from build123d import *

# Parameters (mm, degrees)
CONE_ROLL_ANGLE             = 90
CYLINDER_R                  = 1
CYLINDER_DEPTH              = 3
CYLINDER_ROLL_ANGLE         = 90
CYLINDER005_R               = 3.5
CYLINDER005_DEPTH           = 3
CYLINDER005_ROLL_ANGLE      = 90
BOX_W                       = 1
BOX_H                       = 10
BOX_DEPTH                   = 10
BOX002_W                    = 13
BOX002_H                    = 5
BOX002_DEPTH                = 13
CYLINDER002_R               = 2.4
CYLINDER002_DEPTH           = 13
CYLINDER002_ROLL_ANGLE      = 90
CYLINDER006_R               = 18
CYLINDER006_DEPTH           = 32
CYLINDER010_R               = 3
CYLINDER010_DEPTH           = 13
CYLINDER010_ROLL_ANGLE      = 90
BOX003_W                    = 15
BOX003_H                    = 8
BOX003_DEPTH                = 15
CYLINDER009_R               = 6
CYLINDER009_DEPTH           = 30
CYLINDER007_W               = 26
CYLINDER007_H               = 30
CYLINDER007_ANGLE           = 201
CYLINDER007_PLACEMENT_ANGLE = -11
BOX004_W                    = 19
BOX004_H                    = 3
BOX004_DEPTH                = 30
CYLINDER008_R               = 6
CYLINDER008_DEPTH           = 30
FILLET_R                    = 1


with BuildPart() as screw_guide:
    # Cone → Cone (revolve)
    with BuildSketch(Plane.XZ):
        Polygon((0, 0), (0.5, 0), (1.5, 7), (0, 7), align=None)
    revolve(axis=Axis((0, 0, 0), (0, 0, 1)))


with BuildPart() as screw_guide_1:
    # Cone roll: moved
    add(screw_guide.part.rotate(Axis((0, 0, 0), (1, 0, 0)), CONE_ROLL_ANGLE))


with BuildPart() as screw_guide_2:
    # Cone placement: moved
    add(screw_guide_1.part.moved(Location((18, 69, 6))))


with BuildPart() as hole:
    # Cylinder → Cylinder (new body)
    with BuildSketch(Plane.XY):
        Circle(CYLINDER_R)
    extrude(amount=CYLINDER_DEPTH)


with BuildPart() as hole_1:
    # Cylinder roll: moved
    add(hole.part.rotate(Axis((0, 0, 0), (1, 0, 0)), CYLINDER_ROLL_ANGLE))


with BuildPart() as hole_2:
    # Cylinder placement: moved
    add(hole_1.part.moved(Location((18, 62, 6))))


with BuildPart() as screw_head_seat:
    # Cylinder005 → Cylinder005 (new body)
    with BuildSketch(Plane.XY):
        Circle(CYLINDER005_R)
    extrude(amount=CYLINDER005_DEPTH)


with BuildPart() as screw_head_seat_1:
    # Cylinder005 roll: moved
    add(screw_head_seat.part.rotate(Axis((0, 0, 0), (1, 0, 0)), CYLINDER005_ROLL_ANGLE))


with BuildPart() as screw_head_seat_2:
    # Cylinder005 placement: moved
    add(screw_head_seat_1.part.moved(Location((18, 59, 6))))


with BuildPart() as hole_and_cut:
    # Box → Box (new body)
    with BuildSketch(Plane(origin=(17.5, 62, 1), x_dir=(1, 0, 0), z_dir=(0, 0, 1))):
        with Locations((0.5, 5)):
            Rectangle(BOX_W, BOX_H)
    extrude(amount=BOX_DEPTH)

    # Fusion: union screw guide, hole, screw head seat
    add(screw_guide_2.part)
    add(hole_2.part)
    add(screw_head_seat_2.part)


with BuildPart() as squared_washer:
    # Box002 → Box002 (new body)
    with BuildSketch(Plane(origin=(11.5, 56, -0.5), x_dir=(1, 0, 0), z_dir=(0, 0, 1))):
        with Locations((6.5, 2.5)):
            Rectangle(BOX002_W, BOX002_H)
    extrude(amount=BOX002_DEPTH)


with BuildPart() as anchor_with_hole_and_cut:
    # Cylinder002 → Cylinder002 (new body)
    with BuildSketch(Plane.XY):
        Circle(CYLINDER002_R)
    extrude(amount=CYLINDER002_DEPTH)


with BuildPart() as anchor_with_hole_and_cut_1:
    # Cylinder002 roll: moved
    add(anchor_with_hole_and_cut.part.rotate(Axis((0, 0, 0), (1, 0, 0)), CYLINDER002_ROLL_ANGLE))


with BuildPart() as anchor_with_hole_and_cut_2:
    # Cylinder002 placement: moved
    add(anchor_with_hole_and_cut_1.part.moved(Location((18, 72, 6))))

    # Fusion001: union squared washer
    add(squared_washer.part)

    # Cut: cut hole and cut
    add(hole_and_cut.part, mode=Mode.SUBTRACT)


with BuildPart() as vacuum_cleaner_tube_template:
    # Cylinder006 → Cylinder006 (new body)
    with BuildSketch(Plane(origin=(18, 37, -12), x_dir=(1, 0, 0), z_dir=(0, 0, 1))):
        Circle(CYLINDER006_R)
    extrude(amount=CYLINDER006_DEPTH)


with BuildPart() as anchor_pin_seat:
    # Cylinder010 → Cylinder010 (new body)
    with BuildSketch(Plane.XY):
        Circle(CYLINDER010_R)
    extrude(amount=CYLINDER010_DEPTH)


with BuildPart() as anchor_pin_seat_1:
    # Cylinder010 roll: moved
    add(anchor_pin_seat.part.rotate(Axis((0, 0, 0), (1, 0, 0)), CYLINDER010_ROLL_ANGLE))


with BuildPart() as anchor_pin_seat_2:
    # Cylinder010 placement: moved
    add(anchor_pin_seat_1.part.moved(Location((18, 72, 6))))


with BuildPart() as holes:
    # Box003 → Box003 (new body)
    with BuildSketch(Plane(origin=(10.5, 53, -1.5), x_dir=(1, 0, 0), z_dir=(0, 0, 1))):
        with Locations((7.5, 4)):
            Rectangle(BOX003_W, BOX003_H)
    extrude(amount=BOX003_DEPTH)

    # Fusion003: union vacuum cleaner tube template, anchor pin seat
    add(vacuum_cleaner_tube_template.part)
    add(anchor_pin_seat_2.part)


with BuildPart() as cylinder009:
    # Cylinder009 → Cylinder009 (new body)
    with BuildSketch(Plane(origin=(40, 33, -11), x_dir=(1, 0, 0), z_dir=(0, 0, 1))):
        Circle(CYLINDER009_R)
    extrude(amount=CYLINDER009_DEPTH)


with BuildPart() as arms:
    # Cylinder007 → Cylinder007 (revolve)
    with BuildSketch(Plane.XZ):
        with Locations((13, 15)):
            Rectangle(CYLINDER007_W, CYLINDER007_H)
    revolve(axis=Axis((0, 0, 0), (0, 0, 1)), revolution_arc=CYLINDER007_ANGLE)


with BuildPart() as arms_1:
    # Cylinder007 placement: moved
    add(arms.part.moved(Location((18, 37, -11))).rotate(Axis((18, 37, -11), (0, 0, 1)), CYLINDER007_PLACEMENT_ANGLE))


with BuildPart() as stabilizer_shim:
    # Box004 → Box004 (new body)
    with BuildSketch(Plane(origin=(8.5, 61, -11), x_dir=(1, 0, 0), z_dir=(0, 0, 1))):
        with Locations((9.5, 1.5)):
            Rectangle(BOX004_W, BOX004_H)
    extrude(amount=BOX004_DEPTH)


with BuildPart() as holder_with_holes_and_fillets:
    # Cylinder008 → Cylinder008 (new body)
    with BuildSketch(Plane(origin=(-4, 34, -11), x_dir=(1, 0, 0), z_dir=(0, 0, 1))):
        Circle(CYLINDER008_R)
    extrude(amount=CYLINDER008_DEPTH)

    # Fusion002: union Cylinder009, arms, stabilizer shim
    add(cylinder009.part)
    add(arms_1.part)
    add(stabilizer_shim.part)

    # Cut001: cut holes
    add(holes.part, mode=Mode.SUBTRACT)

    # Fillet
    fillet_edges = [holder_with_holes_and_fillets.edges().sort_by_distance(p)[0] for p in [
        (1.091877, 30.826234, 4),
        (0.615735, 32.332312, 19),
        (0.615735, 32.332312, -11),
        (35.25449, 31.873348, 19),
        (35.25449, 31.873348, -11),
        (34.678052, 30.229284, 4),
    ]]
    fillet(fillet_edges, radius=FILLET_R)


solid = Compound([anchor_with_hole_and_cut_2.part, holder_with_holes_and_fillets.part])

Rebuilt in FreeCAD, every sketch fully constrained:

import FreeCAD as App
import Part
import Sketcher


def edges_at(feature, points):
    """Names of the edges that pass closest to the given points."""
    edges = feature.Shape.Edges
    near = lambda p: min(range(len(edges)), key=lambda i: edges[i].distToShape(Part.Vertex(*p))[0])
    return sorted({f"Edge{near(p) + 1}" for p in points})


def add_polygon(sketch, points):
    """Adds a closed chain of lines whose ends are joined by coincident constraints."""
    first, n = sketch.GeometryCount, len(points)
    for a, b in zip(points, points[1:] + points[:1]):
        sketch.addGeometry(Part.LineSegment(App.Vector(*a, 0), App.Vector(*b, 0)), False)
    for i in range(n):
        sketch.addConstraint(Sketcher.Constraint("Coincident", first + i, 2, first + (i + 1) % n, 1))

doc = App.newDocument("Part")
body = doc.addObject("PartDesign::Body", "Body")

sketch1 = body.newObject("Sketcher::SketchObject", "Sketch")
sketch1.AttachmentSupport = (doc.getObject("XZ_Plane"), [""])
sketch1.MapMode = "FlatFace"
add_polygon(sketch1, [(0, 0), (0.5, 0), (1.5, 7), (0, 7)])
sketch1.addConstraint(Sketcher.Constraint("Horizontal", 0))
sketch1.addConstraint(Sketcher.Constraint("Horizontal", 2))
sketch1.addConstraint(Sketcher.Constraint("Vertical", 3))
sketch1.addConstraint(Sketcher.Constraint("Coincident", 3, 2, -1, 1))
sketch1.addConstraint(Sketcher.Constraint("DistanceY", 3, 2, 3, 1, 7.0))
sketch1.addConstraint(Sketcher.Constraint("DistanceX", 0, 1, 0, 2, 0.5))
sketch1.addConstraint(Sketcher.Constraint("DistanceX", 2, 2, 2, 1, 1.5))
revolution = body.newObject("PartDesign::Revolution", "Revolution")
revolution.Profile = sketch1
revolution.ReferenceAxis = (sketch1, ["V_Axis"])
revolution.Angle = 360
body2 = doc.addObject("PartDesign::Body", "Body001")
doc.recompute()

body.Placement = App.Placement(App.Vector(0, 0, 0), App.Rotation(App.Vector(1, 0, 0), 90))
boolean = body2.newObject("PartDesign::Boolean", "Boolean")
boolean.Type = "Fuse"
boolean.addObjects([body])
body3 = doc.addObject("PartDesign::Body", "Body002")
doc.recompute()

body2.Placement = App.Placement(App.Vector(18, 69, 6), App.Rotation(App.Vector(0, 0, 1), 0))
boolean2 = body3.newObject("PartDesign::Boolean", "Boolean001")
boolean2.Type = "Fuse"
boolean2.addObjects([body2])
body4 = doc.addObject("PartDesign::Body", "Body003")

sketch2 = body4.newObject("Sketcher::SketchObject", "Sketch001")
sketch2.AttachmentSupport = (doc.getObject("XY_Plane003"), [""])
sketch2.MapMode = "FlatFace"
sketch2.addGeometry(Part.Circle(App.Vector(0, 0, 0), App.Vector(0, 0, 1), 1), False)
sketch2.addConstraint(Sketcher.Constraint("Coincident", 0, 3, -1, 1))
sketch2.addConstraint(Sketcher.Constraint("Diameter", 0, 2.0))
pad1 = body4.newObject("PartDesign::Pad", "Pad")
pad1.Profile = sketch2
pad1.Length = 3
body5 = doc.addObject("PartDesign::Body", "Body004")
doc.recompute()

body4.Placement = App.Placement(App.Vector(0, 0, 0), App.Rotation(App.Vector(1, 0, 0), 90))
boolean3 = body5.newObject("PartDesign::Boolean", "Boolean002")
boolean3.Type = "Fuse"
boolean3.addObjects([body4])
body6 = doc.addObject("PartDesign::Body", "Body005")
doc.recompute()

body5.Placement = App.Placement(App.Vector(18, 62, 6), App.Rotation(App.Vector(0, 0, 1), 0))
boolean4 = body6.newObject("PartDesign::Boolean", "Boolean003")
boolean4.Type = "Fuse"
boolean4.addObjects([body5])
body7 = doc.addObject("PartDesign::Body", "Body006")

sketch3 = body7.newObject("Sketcher::SketchObject", "Sketch002")
sketch3.AttachmentSupport = (doc.getObject("XY_Plane006"), [""])
sketch3.MapMode = "FlatFace"
sketch3.addGeometry(Part.Circle(App.Vector(0, 0, 0), App.Vector(0, 0, 1), 3.5), False)
sketch3.addConstraint(Sketcher.Constraint("Coincident", 0, 3, -1, 1))
sketch3.addConstraint(Sketcher.Constraint("Diameter", 0, 7.0))
pad2 = body7.newObject("PartDesign::Pad", "Pad001")
pad2.Profile = sketch3
pad2.Length = 3
body8 = doc.addObject("PartDesign::Body", "Body007")
doc.recompute()

body7.Placement = App.Placement(App.Vector(0, 0, 0), App.Rotation(App.Vector(1, 0, 0), 90))
boolean5 = body8.newObject("PartDesign::Boolean", "Boolean004")
boolean5.Type = "Fuse"
boolean5.addObjects([body7])
body9 = doc.addObject("PartDesign::Body", "Body008")
doc.recompute()

body8.Placement = App.Placement(App.Vector(18, 59, 6), App.Rotation(App.Vector(0, 0, 1), 0))
boolean6 = body9.newObject("PartDesign::Boolean", "Boolean005")
boolean6.Type = "Fuse"
boolean6.addObjects([body8])
body10 = doc.addObject("PartDesign::Body", "Body009")

sketch4 = body10.newObject("Sketcher::SketchObject", "Sketch003")
sketch4.AttachmentSupport = (doc.getObject("XY_Plane009"), [""])
sketch4.MapMode = "FlatFace"
sketch4.AttachmentOffset = App.Placement(App.Vector(0, 0, 1), App.Rotation())
add_polygon(sketch4, [(17.5, 72), (17.5, 62), (18.5, 62), (18.5, 72)])
sketch4.addConstraint(Sketcher.Constraint("Vertical", 0))
sketch4.addConstraint(Sketcher.Constraint("Horizontal", 1))
sketch4.addConstraint(Sketcher.Constraint("Vertical", 2))
sketch4.addConstraint(Sketcher.Constraint("Horizontal", 3))
sketch4.addConstraint(Sketcher.Constraint("DistanceX", 1, 1, 1, 2, 1.0))
sketch4.addConstraint(Sketcher.Constraint("DistanceY", 0, 2, 0, 1, 10.0))
sketch4.addConstraint(Sketcher.Constraint("DistanceY", -1, 1, 0, 2, 62.0))
sketch4.addConstraint(Sketcher.Constraint("DistanceX", -1, 1, 0, 2, 17.5))
pad3 = body10.newObject("PartDesign::Pad", "Pad002")
pad3.Profile = sketch4
pad3.Length = 10
doc.recompute()

boolean7 = body10.newObject("PartDesign::Boolean", "Boolean006")
boolean7.Type = "Fuse"
boolean7.addObjects([body3])
doc.recompute()

boolean8 = body10.newObject("PartDesign::Boolean", "Boolean007")
boolean8.Type = "Fuse"
boolean8.addObjects([body6])
doc.recompute()

boolean9 = body10.newObject("PartDesign::Boolean", "Boolean008")
boolean9.Type = "Fuse"
boolean9.addObjects([body9])
body11 = doc.addObject("PartDesign::Body", "Body010")

sketch5 = body11.newObject("Sketcher::SketchObject", "Sketch004")
sketch5.AttachmentSupport = (doc.getObject("XY_Plane010"), [""])
sketch5.MapMode = "FlatFace"
sketch5.AttachmentOffset = App.Placement(App.Vector(0, 0, -0.5), App.Rotation())
add_polygon(sketch5, [(12, 61), (12, 56), (24, 56), (24, 61)])
sketch5.addConstraint(Sketcher.Constraint("Vertical", 0))
sketch5.addConstraint(Sketcher.Constraint("Horizontal", 1))
sketch5.addConstraint(Sketcher.Constraint("Vertical", 2))
sketch5.addConstraint(Sketcher.Constraint("Horizontal", 3))
sketch5.addConstraint(Sketcher.Constraint("DistanceX", 1, 1, 1, 2, 13.0))
sketch5.addConstraint(Sketcher.Constraint("DistanceY", 0, 2, 0, 1, 5.0))
sketch5.addConstraint(Sketcher.Constraint("DistanceY", -1, 1, 0, 2, 56.0))
sketch5.addConstraint(Sketcher.Constraint("DistanceX", -1, 1, 0, 2, 11.5))
pad4 = body11.newObject("PartDesign::Pad", "Pad003")
pad4.Profile = sketch5
pad4.Length = 13
body12 = doc.addObject("PartDesign::Body", "Body011")

sketch6 = body12.newObject("Sketcher::SketchObject", "Sketch005")
sketch6.AttachmentSupport = (doc.getObject("XY_Plane011"), [""])
sketch6.MapMode = "FlatFace"
sketch6.addGeometry(Part.Circle(App.Vector(0, 0, 0), App.Vector(0, 0, 1), 2.4), False)
sketch6.addConstraint(Sketcher.Constraint("Coincident", 0, 3, -1, 1))
sketch6.addConstraint(Sketcher.Constraint("Diameter", 0, 4.8))
pad5 = body12.newObject("PartDesign::Pad", "Pad004")
pad5.Profile = sketch6
pad5.Length = 13
body13 = doc.addObject("PartDesign::Body", "Body012")
doc.recompute()

body12.Placement = App.Placement(App.Vector(0, 0, 0), App.Rotation(App.Vector(1, 0, 0), 90))
boolean10 = body13.newObject("PartDesign::Boolean", "Boolean009")
boolean10.Type = "Fuse"
boolean10.addObjects([body12])
body14 = doc.addObject("PartDesign::Body", "Body013")
doc.recompute()

body13.Placement = App.Placement(App.Vector(18, 72, 6), App.Rotation(App.Vector(0, 0, 1), 0))
boolean11 = body14.newObject("PartDesign::Boolean", "Boolean010")
boolean11.Type = "Fuse"
boolean11.addObjects([body13])
doc.recompute()

boolean12 = body14.newObject("PartDesign::Boolean", "Boolean011")
boolean12.Type = "Fuse"
boolean12.addObjects([body11])
doc.recompute()

boolean13 = body14.newObject("PartDesign::Boolean", "Boolean012")
boolean13.Type = "Cut"
boolean13.addObjects([body10])
body15 = doc.addObject("PartDesign::Body", "Body014")

sketch7 = body15.newObject("Sketcher::SketchObject", "Sketch006")
sketch7.AttachmentSupport = (doc.getObject("XY_Plane014"), [""])
sketch7.MapMode = "FlatFace"
sketch7.AttachmentOffset = App.Placement(App.Vector(0, 0, -12), App.Rotation())
sketch7.addGeometry(Part.Circle(App.Vector(18, 37, 0), App.Vector(0, 0, 1), 18), False)
sketch7.addConstraint(Sketcher.Constraint("Diameter", 0, 36.0))
sketch7.addConstraint(Sketcher.Constraint("DistanceX", -1, 1, 0, 3, 18.0))
sketch7.addConstraint(Sketcher.Constraint("DistanceY", -1, 1, 0, 3, 37.0))
pad6 = body15.newObject("PartDesign::Pad", "Pad005")
pad6.Profile = sketch7
pad6.Length = 32
body16 = doc.addObject("PartDesign::Body", "Body015")

sketch8 = body16.newObject("Sketcher::SketchObject", "Sketch007")
sketch8.AttachmentSupport = (doc.getObject("XY_Plane015"), [""])
sketch8.MapMode = "FlatFace"
sketch8.addGeometry(Part.Circle(App.Vector(0, 0, 0), App.Vector(0, 0, 1), 3), False)
sketch8.addConstraint(Sketcher.Constraint("Coincident", 0, 3, -1, 1))
sketch8.addConstraint(Sketcher.Constraint("Diameter", 0, 6.0))
pad7 = body16.newObject("PartDesign::Pad", "Pad006")
pad7.Profile = sketch8
pad7.Length = 13
body17 = doc.addObject("PartDesign::Body", "Body016")
doc.recompute()

body16.Placement = App.Placement(App.Vector(0, 0, 0), App.Rotation(App.Vector(1, 0, 0), 90))
boolean14 = body17.newObject("PartDesign::Boolean", "Boolean013")
boolean14.Type = "Fuse"
boolean14.addObjects([body16])
body18 = doc.addObject("PartDesign::Body", "Body017")
doc.recompute()

body17.Placement = App.Placement(App.Vector(18, 72, 6), App.Rotation(App.Vector(0, 0, 1), 0))
boolean15 = body18.newObject("PartDesign::Boolean", "Boolean014")
boolean15.Type = "Fuse"
boolean15.addObjects([body17])
body19 = doc.addObject("PartDesign::Body", "Body018")

sketch9 = body19.newObject("Sketcher::SketchObject", "Sketch008")
sketch9.AttachmentSupport = (doc.getObject("XY_Plane018"), [""])
sketch9.MapMode = "FlatFace"
sketch9.AttachmentOffset = App.Placement(App.Vector(0, 0, -1.5), App.Rotation())
add_polygon(sketch9, [(10, 61), (10, 53), (26, 53), (26, 61)])
sketch9.addConstraint(Sketcher.Constraint("Vertical", 0))
sketch9.addConstraint(Sketcher.Constraint("Horizontal", 1))
sketch9.addConstraint(Sketcher.Constraint("Vertical", 2))
sketch9.addConstraint(Sketcher.Constraint("Horizontal", 3))
sketch9.addConstraint(Sketcher.Constraint("DistanceX", 1, 1, 1, 2, 15.0))
sketch9.addConstraint(Sketcher.Constraint("DistanceY", 0, 2, 0, 1, 8.0))
sketch9.addConstraint(Sketcher.Constraint("DistanceY", -1, 1, 0, 2, 53.0))
sketch9.addConstraint(Sketcher.Constraint("DistanceX", -1, 1, 0, 2, 10.5))
pad8 = body19.newObject("PartDesign::Pad", "Pad007")
pad8.Profile = sketch9
pad8.Length = 15
doc.recompute()

boolean16 = body19.newObject("PartDesign::Boolean", "Boolean015")
boolean16.Type = "Fuse"
boolean16.addObjects([body15])
doc.recompute()

boolean17 = body19.newObject("PartDesign::Boolean", "Boolean016")
boolean17.Type = "Fuse"
boolean17.addObjects([body18])
body20 = doc.addObject("PartDesign::Body", "Body019")

sketch10 = body20.newObject("Sketcher::SketchObject", "Sketch009")
sketch10.AttachmentSupport = (doc.getObject("XY_Plane019"), [""])
sketch10.MapMode = "FlatFace"
sketch10.AttachmentOffset = App.Placement(App.Vector(0, 0, -11), App.Rotation())
sketch10.addGeometry(Part.Circle(App.Vector(40, 33, 0), App.Vector(0, 0, 1), 6), False)
sketch10.addConstraint(Sketcher.Constraint("Diameter", 0, 12.0))
sketch10.addConstraint(Sketcher.Constraint("DistanceX", -1, 1, 0, 3, 40.0))
sketch10.addConstraint(Sketcher.Constraint("DistanceY", -1, 1, 0, 3, 33.0))
pad9 = body20.newObject("PartDesign::Pad", "Pad008")
pad9.Profile = sketch10
pad9.Length = 30
body21 = doc.addObject("PartDesign::Body", "Body020")

sketch11 = body21.newObject("Sketcher::SketchObject", "Sketch010")
sketch11.AttachmentSupport = (doc.getObject("XZ_Plane020"), [""])
sketch11.MapMode = "FlatFace"
add_polygon(sketch11, [(0, 30), (0, 0), (26, 0), (26, 30)])
sketch11.addConstraint(Sketcher.Constraint("Vertical", 0))
sketch11.addConstraint(Sketcher.Constraint("Horizontal", 1))
sketch11.addConstraint(Sketcher.Constraint("Vertical", 2))
sketch11.addConstraint(Sketcher.Constraint("Horizontal", 3))
sketch11.addConstraint(Sketcher.Constraint("Coincident", 0, 2, -1, 1))
sketch11.addConstraint(Sketcher.Constraint("DistanceX", 1, 1, 1, 2, 26.0))
sketch11.addConstraint(Sketcher.Constraint("DistanceY", 0, 2, 0, 1, 30.0))
revolution2 = body21.newObject("PartDesign::Revolution", "Revolution001")
revolution2.Profile = sketch11
revolution2.ReferenceAxis = (sketch11, ["V_Axis"])
revolution2.Angle = 201
body22 = doc.addObject("PartDesign::Body", "Body021")
doc.recompute()

body21.Placement = App.Placement(App.Vector(18, 37, -11), App.Rotation(App.Vector(0, 0, 1), 349))
boolean18 = body22.newObject("PartDesign::Boolean", "Boolean017")
boolean18.Type = "Fuse"
boolean18.addObjects([body21])
body23 = doc.addObject("PartDesign::Body", "Body022")

sketch12 = body23.newObject("Sketcher::SketchObject", "Sketch011")
sketch12.AttachmentSupport = (doc.getObject("XY_Plane022"), [""])
sketch12.MapMode = "FlatFace"
sketch12.AttachmentOffset = App.Placement(App.Vector(0, 0, -11), App.Rotation())
add_polygon(sketch12, [(8.5, 64), (8.5, 61), (27.5, 61), (27.5, 64)])
sketch12.addConstraint(Sketcher.Constraint("Vertical", 0))
sketch12.addConstraint(Sketcher.Constraint("Horizontal", 1))
sketch12.addConstraint(Sketcher.Constraint("Vertical", 2))
sketch12.addConstraint(Sketcher.Constraint("Horizontal", 3))
sketch12.addConstraint(Sketcher.Constraint("DistanceX", 1, 1, 1, 2, 19.0))
sketch12.addConstraint(Sketcher.Constraint("DistanceY", 0, 2, 0, 1, 3.0))
sketch12.addConstraint(Sketcher.Constraint("DistanceY", -1, 1, 0, 2, 61.0))
sketch12.addConstraint(Sketcher.Constraint("DistanceX", -1, 1, 0, 2, 8.5))
pad10 = body23.newObject("PartDesign::Pad", "Pad009")
pad10.Profile = sketch12
pad10.Length = 30
body24 = doc.addObject("PartDesign::Body", "Body023")
body24.AllowCompound = True

sketch13 = body24.newObject("Sketcher::SketchObject", "Sketch012")
sketch13.AttachmentSupport = (doc.getObject("XY_Plane023"), [""])
sketch13.MapMode = "FlatFace"
sketch13.AttachmentOffset = App.Placement(App.Vector(0, 0, -11), App.Rotation())
sketch13.addGeometry(Part.Circle(App.Vector(-4, 34, 0), App.Vector(0, 0, 1), 6), False)
sketch13.addConstraint(Sketcher.Constraint("Diameter", 0, 12.0))
sketch13.addConstraint(Sketcher.Constraint("DistanceX", 0, 3, -1, 1, 4.0))
sketch13.addConstraint(Sketcher.Constraint("DistanceY", -1, 1, 0, 3, 34.0))
pad11 = body24.newObject("PartDesign::Pad", "Pad010")
pad11.Profile = sketch13
pad11.Length = 30
doc.recompute()

boolean19 = body24.newObject("PartDesign::Boolean", "Boolean018")
boolean19.Type = "Fuse"
boolean19.addObjects([body20])
doc.recompute()

boolean20 = body24.newObject("PartDesign::Boolean", "Boolean019")
boolean20.Type = "Fuse"
boolean20.addObjects([body22])
doc.recompute()

boolean21 = body24.newObject("PartDesign::Boolean", "Boolean020")
boolean21.Type = "Fuse"
boolean21.addObjects([body23])
doc.recompute()

boolean22 = body24.newObject("PartDesign::Boolean", "Boolean021")
boolean22.Type = "Cut"
boolean22.addObjects([body19])
doc.recompute()

fillet = body24.newObject("PartDesign::Fillet", "Fillet")
fillet.Base = (boolean22, edges_at(boolean22, [
    (1.092, 30.826, 4),
    (14.865, 54.725, 19),
    (14.865, 54.725, -11),
    (35.666, 33.551, 19),
    (35.666, 33.551, -11),
    (34.678, 30.229, 4),
]))
fillet.Radius = 1

doc.recompute()
